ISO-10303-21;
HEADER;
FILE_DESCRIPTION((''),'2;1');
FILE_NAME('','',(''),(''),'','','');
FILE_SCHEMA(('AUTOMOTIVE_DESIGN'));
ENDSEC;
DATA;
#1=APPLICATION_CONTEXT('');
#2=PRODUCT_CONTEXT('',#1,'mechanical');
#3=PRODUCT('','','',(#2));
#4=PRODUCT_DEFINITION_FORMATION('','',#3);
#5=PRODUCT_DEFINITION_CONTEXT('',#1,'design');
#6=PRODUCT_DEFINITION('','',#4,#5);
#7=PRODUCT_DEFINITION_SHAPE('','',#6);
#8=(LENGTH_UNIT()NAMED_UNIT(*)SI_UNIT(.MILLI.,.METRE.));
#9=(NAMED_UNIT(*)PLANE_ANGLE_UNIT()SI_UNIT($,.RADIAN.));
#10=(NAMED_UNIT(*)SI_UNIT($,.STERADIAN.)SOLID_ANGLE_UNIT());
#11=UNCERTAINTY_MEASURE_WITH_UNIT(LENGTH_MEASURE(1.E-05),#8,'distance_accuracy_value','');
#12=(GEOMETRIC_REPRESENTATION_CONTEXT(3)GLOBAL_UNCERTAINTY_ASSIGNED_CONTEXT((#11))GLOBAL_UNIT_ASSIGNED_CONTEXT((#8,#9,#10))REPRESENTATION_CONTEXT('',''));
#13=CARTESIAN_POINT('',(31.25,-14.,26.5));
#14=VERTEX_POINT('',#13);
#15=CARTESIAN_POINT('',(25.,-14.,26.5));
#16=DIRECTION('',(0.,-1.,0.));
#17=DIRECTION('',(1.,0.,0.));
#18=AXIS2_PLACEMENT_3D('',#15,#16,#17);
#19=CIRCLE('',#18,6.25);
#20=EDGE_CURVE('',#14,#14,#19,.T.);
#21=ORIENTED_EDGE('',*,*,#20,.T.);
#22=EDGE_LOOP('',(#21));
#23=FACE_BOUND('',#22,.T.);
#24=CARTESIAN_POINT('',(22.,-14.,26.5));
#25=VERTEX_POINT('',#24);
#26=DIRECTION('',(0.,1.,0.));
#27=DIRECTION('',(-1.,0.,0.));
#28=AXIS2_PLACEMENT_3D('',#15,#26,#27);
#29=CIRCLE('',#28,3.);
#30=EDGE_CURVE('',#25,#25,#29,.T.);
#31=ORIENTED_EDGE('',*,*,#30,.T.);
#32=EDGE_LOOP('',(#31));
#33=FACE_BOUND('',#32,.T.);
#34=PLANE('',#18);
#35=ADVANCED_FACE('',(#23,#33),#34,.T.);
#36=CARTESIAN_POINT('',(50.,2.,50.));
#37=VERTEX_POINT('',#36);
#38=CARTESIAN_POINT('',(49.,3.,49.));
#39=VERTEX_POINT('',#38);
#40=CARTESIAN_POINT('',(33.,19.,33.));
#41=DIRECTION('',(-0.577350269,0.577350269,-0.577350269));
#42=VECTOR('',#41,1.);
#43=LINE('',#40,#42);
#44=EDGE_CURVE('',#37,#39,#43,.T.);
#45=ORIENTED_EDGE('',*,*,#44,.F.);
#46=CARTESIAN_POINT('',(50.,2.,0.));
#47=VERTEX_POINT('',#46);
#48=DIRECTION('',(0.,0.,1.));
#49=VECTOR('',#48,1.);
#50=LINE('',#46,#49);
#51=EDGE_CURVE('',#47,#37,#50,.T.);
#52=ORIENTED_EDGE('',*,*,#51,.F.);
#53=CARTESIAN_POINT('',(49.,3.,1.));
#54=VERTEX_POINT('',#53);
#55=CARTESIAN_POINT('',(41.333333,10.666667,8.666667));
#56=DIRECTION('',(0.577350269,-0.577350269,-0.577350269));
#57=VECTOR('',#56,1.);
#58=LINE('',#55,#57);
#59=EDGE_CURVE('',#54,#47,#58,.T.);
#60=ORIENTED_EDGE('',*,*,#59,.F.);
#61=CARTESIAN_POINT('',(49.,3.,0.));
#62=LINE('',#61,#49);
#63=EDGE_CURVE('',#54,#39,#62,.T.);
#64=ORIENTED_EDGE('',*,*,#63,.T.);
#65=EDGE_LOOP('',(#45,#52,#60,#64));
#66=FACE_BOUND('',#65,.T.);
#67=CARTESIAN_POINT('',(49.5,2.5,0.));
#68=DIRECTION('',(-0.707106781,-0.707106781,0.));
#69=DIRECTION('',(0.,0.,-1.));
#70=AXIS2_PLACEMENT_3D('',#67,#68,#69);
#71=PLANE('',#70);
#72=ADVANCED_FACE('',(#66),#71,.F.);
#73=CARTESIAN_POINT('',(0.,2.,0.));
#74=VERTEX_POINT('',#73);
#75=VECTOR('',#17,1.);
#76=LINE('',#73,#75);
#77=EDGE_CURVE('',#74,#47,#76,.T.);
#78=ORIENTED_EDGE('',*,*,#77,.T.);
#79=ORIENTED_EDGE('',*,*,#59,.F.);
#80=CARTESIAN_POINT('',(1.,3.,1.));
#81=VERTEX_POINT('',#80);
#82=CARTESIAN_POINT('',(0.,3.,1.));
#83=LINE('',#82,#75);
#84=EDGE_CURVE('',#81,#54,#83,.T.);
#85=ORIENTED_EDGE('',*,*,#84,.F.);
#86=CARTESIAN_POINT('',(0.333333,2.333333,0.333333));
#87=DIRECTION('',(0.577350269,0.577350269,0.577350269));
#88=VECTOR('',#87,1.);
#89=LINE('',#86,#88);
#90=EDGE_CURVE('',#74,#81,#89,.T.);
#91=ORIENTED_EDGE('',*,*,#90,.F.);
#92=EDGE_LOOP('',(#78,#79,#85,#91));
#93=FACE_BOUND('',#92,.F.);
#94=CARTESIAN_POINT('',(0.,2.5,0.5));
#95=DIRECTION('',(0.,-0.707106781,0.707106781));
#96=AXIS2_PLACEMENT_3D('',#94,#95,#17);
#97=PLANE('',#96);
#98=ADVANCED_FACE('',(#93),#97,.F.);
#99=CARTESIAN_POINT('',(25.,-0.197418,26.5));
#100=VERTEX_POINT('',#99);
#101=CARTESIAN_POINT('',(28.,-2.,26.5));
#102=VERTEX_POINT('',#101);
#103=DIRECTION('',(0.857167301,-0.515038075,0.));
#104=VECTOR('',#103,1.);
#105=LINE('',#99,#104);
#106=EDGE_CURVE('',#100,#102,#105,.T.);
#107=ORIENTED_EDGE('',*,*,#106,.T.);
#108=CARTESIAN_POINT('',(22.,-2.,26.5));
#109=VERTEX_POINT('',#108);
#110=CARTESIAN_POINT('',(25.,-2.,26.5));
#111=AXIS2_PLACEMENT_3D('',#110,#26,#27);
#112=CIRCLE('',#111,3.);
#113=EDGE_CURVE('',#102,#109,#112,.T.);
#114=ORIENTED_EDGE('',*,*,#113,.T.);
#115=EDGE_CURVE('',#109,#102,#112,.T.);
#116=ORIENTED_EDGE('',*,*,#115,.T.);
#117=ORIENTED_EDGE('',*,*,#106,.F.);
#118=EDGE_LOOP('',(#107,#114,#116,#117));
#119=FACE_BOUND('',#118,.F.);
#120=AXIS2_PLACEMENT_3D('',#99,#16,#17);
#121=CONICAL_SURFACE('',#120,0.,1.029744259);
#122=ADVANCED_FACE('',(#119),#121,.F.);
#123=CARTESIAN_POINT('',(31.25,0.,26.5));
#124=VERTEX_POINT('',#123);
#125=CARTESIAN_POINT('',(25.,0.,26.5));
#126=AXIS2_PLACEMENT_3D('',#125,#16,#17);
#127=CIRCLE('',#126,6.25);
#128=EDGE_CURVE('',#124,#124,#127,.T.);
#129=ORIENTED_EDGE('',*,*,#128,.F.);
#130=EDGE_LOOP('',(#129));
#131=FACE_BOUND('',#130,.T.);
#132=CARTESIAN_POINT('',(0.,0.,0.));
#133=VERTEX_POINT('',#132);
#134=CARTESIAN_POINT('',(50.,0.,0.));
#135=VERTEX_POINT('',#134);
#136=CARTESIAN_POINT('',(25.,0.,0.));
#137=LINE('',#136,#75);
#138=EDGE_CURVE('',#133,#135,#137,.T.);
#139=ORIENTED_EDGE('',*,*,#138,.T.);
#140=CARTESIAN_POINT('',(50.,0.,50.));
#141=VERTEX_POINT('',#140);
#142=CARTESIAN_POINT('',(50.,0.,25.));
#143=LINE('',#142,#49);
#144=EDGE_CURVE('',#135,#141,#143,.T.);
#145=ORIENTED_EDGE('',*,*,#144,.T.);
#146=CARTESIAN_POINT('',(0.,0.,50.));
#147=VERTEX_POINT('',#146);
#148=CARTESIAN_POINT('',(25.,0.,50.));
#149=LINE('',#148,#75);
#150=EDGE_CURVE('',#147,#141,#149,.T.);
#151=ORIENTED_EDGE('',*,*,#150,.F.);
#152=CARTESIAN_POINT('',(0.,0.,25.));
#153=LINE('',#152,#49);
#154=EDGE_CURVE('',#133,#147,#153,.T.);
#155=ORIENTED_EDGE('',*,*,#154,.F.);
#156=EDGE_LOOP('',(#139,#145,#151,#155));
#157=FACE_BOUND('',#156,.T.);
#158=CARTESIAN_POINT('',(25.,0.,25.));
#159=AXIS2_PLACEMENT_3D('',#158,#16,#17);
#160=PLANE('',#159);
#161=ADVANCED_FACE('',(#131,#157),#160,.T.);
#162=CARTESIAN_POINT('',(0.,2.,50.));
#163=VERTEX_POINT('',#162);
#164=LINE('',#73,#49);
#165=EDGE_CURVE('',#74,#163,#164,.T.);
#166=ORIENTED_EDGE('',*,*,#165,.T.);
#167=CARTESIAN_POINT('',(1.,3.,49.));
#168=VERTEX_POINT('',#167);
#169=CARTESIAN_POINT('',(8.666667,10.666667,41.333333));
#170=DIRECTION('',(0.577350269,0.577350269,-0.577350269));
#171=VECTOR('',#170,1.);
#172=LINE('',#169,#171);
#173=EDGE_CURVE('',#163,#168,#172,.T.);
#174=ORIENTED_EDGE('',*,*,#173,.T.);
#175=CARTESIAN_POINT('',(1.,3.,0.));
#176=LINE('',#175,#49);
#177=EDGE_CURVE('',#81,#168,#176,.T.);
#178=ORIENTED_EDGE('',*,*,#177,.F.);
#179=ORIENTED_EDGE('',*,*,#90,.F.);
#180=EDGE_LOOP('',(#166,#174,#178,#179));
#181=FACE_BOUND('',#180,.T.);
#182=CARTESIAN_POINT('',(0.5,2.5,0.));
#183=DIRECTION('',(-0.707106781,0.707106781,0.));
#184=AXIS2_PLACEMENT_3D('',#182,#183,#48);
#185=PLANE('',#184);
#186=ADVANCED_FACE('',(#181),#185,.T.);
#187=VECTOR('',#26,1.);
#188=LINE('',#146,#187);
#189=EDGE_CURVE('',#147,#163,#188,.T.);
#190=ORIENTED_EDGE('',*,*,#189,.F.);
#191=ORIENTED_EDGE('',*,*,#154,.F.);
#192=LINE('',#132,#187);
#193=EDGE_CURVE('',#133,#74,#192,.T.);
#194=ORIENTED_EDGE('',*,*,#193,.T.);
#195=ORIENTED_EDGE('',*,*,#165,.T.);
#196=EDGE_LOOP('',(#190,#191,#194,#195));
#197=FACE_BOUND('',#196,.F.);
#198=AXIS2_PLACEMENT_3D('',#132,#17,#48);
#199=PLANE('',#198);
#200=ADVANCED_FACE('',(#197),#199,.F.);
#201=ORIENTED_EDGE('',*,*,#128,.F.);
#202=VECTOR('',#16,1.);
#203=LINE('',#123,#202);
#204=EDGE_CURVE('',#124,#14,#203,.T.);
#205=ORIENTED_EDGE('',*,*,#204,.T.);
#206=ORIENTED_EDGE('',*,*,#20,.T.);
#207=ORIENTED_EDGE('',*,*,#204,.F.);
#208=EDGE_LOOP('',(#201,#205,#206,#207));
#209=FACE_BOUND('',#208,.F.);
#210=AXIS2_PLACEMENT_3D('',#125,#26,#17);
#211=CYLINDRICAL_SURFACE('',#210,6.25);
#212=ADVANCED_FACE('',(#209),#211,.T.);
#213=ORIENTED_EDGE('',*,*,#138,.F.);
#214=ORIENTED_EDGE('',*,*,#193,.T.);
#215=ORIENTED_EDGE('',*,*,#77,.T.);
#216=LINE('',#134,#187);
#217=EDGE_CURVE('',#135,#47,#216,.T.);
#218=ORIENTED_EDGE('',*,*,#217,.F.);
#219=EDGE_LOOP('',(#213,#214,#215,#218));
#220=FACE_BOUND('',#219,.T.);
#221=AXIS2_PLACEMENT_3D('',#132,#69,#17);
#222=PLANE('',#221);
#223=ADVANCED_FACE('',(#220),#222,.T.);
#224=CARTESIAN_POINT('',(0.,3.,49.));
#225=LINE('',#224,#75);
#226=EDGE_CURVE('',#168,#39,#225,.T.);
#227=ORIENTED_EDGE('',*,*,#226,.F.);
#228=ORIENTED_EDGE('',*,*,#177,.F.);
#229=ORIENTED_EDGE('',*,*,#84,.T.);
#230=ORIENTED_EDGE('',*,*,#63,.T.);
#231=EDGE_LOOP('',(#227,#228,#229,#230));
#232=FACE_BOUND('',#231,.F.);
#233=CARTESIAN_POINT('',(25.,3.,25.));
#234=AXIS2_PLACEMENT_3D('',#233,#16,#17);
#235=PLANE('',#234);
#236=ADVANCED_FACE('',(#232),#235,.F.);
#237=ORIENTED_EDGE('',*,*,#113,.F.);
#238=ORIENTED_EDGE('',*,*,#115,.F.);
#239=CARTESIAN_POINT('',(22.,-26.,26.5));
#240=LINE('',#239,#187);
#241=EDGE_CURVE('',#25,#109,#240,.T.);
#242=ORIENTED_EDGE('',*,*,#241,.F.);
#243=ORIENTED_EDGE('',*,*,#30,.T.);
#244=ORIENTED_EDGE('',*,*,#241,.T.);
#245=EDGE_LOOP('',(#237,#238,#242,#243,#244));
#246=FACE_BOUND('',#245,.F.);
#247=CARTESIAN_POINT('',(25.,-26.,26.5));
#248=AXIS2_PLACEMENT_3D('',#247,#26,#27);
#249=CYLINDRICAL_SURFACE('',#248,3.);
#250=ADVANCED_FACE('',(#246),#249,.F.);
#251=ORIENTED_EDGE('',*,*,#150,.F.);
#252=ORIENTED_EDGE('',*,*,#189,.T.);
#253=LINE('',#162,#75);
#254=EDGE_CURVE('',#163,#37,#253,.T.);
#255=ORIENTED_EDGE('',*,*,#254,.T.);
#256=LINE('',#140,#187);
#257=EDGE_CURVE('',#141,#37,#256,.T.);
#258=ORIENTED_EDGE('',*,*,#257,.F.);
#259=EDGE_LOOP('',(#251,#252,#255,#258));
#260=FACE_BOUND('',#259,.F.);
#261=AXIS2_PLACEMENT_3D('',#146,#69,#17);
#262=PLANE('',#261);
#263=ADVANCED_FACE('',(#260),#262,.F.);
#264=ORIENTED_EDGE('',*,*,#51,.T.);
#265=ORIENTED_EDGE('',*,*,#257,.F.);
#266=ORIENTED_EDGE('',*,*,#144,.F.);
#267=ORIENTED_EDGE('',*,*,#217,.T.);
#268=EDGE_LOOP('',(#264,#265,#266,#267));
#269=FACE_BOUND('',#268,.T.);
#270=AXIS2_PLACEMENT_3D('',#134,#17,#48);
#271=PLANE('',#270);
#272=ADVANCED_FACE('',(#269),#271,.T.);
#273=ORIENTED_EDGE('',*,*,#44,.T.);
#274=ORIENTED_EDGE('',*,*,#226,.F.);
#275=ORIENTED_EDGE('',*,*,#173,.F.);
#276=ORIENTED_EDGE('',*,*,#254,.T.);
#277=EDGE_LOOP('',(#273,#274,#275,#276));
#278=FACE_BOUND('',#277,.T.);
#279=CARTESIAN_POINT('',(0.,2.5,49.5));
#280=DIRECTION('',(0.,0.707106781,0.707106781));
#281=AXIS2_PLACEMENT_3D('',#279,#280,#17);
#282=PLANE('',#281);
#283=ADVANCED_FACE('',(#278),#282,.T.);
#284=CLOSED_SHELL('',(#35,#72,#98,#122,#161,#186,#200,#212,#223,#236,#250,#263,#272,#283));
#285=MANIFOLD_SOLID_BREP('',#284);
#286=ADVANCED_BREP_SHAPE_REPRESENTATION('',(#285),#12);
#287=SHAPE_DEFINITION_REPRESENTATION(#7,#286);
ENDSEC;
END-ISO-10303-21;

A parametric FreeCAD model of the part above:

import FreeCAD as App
import Part
import Sketcher

V = App.Vector


def edges_at(feature, points):
    """Names of the edges that pass closest to the given points."""
    edges = feature.Shape.Edges
    near = lambda p: min(range(len(edges)), key=lambda i: edges[i].distToShape(Part.Vertex(*p))[0])
    return sorted({f"Edge{near(p) + 1}" for p in points})


def add_polygon(sketch, points):
    """Adds a closed chain of lines whose ends are joined by coincident constraints."""
    first, n = sketch.GeometryCount, len(points)
    for a, b in zip(points, points[1:] + points[:1]):
        sketch.addGeometry(Part.LineSegment(App.Vector(*a, 0), App.Vector(*b, 0)), False)
    for i in range(n):
        sketch.addConstraint(Sketcher.Constraint("Coincident", first + i, 2, first + (i + 1) % n, 1))

doc = App.newDocument("Part")
body = doc.addObject("PartDesign::Body", "Body")

# Sketch on XZ plane
sketch1 = doc.addObject("Sketcher::SketchObject", "Sketch")
body.addObject(sketch1)
sketch1.AttachmentSupport = (doc.XZ_Plane, [""])
sketch1.MapMode = "FlatFace"
sketch1.addGeometry(Part.Circle(V(25, 26.5, 0), V(0, 0, 1), 6.25), False)
sketch1.addConstraint([
    Sketcher.Constraint("Diameter", 0, 12.5),
    Sketcher.Constraint("DistanceX", -1, 1, 0, 3, 25.0),
    Sketcher.Constraint("DistanceY", -1, 1, 0, 3, 26.5),
])
pad1 = doc.addObject("PartDesign::Pad", "Pad")
body.addObject(pad1)
pad1.Profile = sketch1
pad1.Length = 14

# Sketch on XZ plane
sketch2 = doc.addObject("Sketcher::SketchObject", "Sketch001")
body.addObject(sketch2)
sketch2.AttachmentSupport = (doc.XZ_Plane, [""])
sketch2.MapMode = "FlatFace"
add_polygon(sketch2, [(0, 50), (0, 0), (50, 0), (50, 50)])  # lines 0-3
sketch2.addConstraint([
    Sketcher.Constraint("Vertical", 0),
    Sketcher.Constraint("Horizontal", 1),
    Sketcher.Constraint("Vertical", 2),
    Sketcher.Constraint("Horizontal", 3),
    Sketcher.Constraint("Coincident", 0, 2, -1, 1),
    Sketcher.Constraint("Equal", 3, 0),
    Sketcher.Constraint("DistanceX", 1, 1, 1, 2, 50.0),
])
pad2 = doc.addObject("PartDesign::Pad", "Pad001")
body.addObject(pad2)
pad2.Profile = sketch2
pad2.Length = 3
pad2.Reversed = True

# Sketch on XZ plane
sketch3 = doc.addObject("Sketcher::SketchObject", "Sketch002")
body.addObject(sketch3)
sketch3.AttachmentSupport = (doc.XZ_Plane, [""])
sketch3.MapMode = "FlatFace"
sketch3.AttachmentOffset = App.Placement(V(0, 0, 14), App.Rotation())
sketch3.addGeometry(Part.Circle(V(25, 26.5, 0), V(0, 0, 1), 3), False)
sketch3.addConstraint([
    Sketcher.Constraint("Diameter", 0, 6.0),
    Sketcher.Constraint("DistanceX", -1, 1, 0, 3, 25.0),
    Sketcher.Constraint("DistanceY", -1, 1, 0, 3, 26.5),
])
doc.recompute()
hole = doc.addObject("PartDesign::Hole", "Hole")
body.addObject(hole)
hole.Profile = sketch3
hole.ThreadType = "None"
hole.Diameter = 6
hole.DepthType = "Dimension"
hole.Depth = 12
hole.DrillPoint = "Angled"
hole.DrillPointAngle = 118
doc.recompute()

chamfer = doc.addObject("PartDesign::Chamfer", "Chamfer")
body.addObject(chamfer)
chamfer.Base = (hole, edges_at(hole, [
    (25, 3, 50),
    (50, 3, 25),
    (0, 3, 25),
    (25, 3, 0),
]))
chamfer.Size = 1

doc.recompute()
